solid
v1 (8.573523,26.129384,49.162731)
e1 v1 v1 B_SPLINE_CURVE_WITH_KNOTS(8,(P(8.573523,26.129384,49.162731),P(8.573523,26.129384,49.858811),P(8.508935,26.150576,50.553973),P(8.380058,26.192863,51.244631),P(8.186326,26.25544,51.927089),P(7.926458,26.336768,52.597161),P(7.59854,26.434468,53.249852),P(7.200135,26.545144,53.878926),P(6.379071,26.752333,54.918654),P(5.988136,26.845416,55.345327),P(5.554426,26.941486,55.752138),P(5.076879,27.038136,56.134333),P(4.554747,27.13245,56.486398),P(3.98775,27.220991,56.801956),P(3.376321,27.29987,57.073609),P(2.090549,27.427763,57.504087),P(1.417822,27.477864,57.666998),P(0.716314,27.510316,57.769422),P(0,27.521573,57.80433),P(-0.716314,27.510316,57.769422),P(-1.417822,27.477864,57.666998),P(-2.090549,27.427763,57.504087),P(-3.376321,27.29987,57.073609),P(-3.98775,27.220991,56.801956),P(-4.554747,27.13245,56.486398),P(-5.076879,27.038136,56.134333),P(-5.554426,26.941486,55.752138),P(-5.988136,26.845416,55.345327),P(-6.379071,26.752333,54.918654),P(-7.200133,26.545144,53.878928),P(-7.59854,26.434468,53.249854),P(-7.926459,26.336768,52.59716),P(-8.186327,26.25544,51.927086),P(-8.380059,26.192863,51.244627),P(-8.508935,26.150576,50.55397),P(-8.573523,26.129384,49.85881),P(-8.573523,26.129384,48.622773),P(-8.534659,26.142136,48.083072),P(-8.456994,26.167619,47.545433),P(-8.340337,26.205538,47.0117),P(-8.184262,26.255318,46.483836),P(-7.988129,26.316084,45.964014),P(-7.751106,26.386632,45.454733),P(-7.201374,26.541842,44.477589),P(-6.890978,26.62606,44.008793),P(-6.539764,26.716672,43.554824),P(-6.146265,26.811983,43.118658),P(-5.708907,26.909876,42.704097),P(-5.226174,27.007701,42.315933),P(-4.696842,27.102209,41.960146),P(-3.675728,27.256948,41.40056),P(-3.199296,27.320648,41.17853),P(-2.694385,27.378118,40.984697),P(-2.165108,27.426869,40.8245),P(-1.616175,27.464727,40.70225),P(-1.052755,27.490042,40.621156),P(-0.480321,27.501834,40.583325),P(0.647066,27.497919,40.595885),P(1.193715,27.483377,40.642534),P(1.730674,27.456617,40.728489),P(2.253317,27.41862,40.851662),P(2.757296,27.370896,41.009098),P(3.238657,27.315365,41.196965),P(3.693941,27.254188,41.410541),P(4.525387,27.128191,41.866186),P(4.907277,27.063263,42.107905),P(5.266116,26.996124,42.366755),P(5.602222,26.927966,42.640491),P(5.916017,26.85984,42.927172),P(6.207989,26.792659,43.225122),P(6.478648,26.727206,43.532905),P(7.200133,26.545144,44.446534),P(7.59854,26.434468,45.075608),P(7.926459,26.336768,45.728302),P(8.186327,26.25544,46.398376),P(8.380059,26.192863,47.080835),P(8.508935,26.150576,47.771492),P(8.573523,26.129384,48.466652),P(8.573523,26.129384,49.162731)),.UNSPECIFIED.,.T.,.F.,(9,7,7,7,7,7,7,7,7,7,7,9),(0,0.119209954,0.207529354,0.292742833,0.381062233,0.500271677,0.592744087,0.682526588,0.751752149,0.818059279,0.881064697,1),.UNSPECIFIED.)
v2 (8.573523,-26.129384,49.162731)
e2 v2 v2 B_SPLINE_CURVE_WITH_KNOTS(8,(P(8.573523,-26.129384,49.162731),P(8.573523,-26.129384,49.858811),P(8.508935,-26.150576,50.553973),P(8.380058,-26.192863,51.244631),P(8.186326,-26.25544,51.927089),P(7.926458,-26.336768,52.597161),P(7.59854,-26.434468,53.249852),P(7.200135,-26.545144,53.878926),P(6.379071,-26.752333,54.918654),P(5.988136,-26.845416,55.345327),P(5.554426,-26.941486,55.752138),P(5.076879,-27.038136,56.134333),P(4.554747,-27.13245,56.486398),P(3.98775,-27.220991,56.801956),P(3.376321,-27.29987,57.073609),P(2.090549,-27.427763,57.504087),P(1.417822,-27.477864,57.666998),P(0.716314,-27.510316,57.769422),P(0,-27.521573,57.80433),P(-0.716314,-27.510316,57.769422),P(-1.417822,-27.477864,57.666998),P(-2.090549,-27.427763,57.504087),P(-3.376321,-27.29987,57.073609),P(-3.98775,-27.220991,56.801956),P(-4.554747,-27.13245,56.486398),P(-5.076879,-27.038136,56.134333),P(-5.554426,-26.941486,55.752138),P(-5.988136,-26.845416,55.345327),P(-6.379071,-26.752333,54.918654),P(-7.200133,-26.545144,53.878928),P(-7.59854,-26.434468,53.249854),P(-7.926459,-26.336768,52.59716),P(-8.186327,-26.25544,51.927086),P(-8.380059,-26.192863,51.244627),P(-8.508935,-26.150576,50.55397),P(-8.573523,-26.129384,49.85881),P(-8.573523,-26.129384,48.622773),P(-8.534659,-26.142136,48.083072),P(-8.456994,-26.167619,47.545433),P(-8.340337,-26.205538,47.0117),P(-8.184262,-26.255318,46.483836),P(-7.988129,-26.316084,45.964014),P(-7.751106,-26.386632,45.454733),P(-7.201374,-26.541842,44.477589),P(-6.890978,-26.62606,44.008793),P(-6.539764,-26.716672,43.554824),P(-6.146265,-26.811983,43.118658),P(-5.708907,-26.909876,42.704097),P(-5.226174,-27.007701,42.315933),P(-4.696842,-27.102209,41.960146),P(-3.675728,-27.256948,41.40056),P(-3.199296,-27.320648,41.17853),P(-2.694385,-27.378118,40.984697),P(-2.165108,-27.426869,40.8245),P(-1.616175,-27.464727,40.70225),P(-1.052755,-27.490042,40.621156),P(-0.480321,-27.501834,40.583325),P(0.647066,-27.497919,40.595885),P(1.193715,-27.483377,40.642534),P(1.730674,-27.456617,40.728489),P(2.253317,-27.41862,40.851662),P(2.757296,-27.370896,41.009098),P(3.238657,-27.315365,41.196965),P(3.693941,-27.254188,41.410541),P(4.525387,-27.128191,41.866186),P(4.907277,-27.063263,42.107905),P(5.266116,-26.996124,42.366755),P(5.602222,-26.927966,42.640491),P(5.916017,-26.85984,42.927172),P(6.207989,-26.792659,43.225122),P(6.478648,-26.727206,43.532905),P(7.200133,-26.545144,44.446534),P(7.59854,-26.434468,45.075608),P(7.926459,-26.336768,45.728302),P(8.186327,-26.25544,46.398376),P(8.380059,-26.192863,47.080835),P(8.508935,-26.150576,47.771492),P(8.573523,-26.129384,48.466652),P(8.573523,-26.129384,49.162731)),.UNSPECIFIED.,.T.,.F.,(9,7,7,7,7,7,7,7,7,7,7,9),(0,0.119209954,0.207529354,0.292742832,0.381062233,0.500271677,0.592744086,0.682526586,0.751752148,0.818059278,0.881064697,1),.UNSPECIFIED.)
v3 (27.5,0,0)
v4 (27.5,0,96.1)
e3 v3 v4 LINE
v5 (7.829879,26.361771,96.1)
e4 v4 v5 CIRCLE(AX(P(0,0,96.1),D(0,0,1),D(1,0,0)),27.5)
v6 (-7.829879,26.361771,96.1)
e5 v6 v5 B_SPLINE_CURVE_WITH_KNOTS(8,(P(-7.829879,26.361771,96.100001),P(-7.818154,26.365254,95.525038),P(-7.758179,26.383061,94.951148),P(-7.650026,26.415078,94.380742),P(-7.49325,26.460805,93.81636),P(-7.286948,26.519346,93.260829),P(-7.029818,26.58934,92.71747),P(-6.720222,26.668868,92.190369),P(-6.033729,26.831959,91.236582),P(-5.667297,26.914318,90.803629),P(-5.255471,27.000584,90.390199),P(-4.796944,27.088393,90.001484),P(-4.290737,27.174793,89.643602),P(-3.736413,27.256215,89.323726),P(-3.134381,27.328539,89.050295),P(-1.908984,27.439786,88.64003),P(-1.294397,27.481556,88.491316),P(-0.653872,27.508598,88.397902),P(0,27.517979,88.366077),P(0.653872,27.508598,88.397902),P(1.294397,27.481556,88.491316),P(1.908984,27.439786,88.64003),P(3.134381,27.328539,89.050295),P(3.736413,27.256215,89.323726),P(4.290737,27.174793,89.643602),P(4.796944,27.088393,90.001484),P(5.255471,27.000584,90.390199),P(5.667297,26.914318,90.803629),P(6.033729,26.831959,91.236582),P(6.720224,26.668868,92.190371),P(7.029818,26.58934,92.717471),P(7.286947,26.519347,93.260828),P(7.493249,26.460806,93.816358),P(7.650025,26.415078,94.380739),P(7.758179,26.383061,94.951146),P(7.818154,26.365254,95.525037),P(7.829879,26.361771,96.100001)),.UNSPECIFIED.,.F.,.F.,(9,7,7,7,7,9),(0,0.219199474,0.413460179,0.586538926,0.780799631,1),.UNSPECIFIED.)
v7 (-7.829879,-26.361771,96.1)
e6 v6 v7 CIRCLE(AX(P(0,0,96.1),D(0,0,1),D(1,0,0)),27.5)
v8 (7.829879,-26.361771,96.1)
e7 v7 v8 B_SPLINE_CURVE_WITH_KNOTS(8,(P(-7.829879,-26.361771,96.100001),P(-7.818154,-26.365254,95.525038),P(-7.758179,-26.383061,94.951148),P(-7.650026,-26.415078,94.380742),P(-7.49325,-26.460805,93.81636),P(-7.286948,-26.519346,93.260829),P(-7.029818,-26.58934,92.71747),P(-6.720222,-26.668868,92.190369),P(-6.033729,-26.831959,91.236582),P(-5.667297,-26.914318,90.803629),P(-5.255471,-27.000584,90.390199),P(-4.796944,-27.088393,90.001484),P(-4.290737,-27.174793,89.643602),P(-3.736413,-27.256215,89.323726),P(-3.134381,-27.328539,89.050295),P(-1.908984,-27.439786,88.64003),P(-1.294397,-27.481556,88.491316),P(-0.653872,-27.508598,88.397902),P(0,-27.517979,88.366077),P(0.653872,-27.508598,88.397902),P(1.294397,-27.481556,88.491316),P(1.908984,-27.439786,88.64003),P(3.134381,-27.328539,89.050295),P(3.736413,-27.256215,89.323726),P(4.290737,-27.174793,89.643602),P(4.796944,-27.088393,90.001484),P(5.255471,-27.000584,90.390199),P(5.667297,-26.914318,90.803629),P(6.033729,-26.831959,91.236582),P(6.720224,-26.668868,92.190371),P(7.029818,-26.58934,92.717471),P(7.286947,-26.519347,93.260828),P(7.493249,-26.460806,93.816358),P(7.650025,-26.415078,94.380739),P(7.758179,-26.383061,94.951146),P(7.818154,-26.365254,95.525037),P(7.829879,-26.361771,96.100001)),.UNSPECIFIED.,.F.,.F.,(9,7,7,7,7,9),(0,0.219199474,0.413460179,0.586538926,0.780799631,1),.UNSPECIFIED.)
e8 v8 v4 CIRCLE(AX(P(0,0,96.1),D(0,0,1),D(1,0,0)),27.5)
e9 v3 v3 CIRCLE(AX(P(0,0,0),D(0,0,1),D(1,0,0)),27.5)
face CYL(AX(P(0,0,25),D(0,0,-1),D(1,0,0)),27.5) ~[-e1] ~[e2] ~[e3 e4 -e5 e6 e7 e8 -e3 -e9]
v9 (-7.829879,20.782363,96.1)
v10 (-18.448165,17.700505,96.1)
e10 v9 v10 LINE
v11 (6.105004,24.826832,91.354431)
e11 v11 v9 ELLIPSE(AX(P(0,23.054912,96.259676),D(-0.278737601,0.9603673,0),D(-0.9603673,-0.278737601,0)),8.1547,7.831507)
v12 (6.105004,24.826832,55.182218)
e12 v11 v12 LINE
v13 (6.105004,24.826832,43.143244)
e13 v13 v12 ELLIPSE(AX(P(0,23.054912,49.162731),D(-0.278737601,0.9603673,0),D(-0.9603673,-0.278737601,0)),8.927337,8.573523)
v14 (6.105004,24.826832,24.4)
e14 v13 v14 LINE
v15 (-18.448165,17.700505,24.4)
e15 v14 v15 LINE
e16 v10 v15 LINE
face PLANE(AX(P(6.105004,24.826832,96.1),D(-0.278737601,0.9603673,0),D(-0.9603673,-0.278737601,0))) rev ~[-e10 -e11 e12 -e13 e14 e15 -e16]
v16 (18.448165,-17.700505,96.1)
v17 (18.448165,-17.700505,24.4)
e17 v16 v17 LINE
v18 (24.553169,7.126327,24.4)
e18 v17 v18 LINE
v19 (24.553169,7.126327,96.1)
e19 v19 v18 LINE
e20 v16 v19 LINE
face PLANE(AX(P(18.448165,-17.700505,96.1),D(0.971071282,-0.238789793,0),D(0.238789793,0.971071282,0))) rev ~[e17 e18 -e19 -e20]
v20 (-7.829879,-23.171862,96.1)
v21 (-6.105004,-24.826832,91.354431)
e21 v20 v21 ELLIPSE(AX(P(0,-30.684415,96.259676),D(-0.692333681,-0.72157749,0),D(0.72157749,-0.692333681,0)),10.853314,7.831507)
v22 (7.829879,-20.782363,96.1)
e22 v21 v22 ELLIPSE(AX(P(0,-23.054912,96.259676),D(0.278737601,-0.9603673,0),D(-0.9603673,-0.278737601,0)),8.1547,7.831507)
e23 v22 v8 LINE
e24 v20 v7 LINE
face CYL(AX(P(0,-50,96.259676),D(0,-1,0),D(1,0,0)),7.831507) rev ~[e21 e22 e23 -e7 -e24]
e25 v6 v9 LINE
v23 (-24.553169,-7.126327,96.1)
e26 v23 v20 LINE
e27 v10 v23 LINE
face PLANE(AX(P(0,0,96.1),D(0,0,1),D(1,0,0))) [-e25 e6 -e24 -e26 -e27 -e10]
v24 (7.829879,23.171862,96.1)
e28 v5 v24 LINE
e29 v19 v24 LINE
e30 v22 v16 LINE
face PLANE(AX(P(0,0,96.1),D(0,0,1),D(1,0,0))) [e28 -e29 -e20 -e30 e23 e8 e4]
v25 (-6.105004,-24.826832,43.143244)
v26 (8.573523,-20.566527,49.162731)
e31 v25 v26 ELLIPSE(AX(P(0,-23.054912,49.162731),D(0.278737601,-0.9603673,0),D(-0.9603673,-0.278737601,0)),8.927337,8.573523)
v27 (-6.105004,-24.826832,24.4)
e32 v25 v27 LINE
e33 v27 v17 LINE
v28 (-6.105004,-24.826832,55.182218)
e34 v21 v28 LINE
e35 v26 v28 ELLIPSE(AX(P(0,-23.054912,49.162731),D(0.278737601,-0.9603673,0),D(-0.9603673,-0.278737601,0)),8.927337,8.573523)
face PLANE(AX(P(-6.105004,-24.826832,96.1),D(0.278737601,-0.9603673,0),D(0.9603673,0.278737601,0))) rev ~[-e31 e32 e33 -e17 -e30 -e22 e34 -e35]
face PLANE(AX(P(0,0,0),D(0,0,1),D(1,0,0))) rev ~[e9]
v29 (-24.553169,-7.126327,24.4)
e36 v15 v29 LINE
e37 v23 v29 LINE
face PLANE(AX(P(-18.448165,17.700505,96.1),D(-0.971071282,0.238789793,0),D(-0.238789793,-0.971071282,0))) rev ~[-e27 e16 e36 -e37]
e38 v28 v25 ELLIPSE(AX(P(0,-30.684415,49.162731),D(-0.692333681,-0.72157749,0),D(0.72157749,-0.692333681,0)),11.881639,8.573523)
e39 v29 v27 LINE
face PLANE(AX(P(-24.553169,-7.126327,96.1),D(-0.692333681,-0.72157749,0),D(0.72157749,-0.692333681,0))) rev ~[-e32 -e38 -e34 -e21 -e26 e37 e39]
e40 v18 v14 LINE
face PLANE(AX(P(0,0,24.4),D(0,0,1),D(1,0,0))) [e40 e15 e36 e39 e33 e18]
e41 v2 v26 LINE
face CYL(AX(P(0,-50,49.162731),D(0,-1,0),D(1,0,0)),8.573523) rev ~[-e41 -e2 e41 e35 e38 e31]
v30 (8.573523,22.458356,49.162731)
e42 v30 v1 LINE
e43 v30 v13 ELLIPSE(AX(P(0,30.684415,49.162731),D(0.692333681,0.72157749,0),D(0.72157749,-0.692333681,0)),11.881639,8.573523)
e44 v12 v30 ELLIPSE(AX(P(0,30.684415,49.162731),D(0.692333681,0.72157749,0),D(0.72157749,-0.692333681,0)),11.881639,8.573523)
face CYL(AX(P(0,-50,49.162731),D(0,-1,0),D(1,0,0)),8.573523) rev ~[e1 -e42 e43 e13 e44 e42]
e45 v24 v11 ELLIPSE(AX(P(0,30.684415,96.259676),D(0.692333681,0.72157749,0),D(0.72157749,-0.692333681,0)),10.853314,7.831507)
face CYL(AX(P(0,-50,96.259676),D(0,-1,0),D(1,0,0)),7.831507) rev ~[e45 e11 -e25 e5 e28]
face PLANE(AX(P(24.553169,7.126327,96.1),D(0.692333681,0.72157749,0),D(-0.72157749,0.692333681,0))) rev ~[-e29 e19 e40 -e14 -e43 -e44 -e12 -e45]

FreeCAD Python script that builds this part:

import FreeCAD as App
import Part
import Sketcher
Q = App.Units.Quantity


def add_polygon(sketch, points):
    """Adds a closed chain of lines whose ends are joined by coincident constraints."""
    first, n = sketch.GeometryCount, len(points)
    for a, b in zip(points, points[1:] + points[:1]):
        sketch.addGeometry(Part.LineSegment(App.Vector(*a, 0), App.Vector(*b, 0)), False)
    for i in range(n):
        sketch.addConstraint(Sketcher.Constraint("Coincident", first + i, 2, first + (i + 1) % n, 1))

doc = App.newDocument("Part")
body = doc.addObject("PartDesign::Body", "Body")

sketch1 = doc.addObject("Sketcher::SketchObject", "Sketch")
body.addObject(sketch1)
sketch1.AttachmentSupport = (doc.XY_Plane, [""])
sketch1.MapMode = "FlatFace"
sketch1.addGeometry(Part.Circle(App.Vector(0, 0, 0), App.Vector(0, 0, 1), 27.5), False)
sketch1.addConstraint([
    Sketcher.Constraint("Coincident", 0, 3, -1, 1),
    Sketcher.Constraint("Diameter", 0, Q("55 mm")),
])
pad1 = doc.addObject("PartDesign::Pad", "Pad")
body.addObject(pad1)
pad1.Profile = sketch1
pad1.Length = 25

sketch2 = doc.addObject("Sketcher::SketchObject", "Sketch001")
body.addObject(sketch2)
sketch2.AttachmentSupport = (doc.XY_Plane, [""])
sketch2.MapMode = "FlatFace"
sketch2.AttachmentOffset = App.Placement(App.Vector(0, 0, 25), App.Rotation())
sketch2.addGeometry(Part.Circle(App.Vector(0, 0, 0), App.Vector(0, 0, 1), 27.5), False)
sketch2.addConstraint([
    Sketcher.Constraint("Coincident", 0, 3, -1, 1),
    Sketcher.Constraint("Diameter", 0, Q("55 mm")),
])
pad2 = doc.addObject("PartDesign::Pad", "Pad001")
body.addObject(pad2)
pad2.Profile = sketch2
pad2.Length = 71.1

sketch3 = doc.addObject("Sketcher::SketchObject", "Sketch002")
body.addObject(sketch3)
sketch3.AttachmentSupport = (doc.XY_Plane, [""])
sketch3.MapMode = "FlatFace"
sketch3.AttachmentOffset = App.Placement(App.Vector(0, 0, 96.1), App.Rotation())
add_polygon(sketch3, [(-6.105004, -24.826832), (18.448165, -17.700505), (24.553169, 7.126327), (6.105004, 24.826832), (-18.448165, 17.700505), (-24.553169, -7.126327)])
sketch3.addConstraint([
    Sketcher.Constraint("Symmetric", 0, 2, 3, 2, -1, 1),
    Sketcher.Constraint("Symmetric", 1, 2, 4, 2, -1, 1),
    Sketcher.Constraint("Symmetric", 2, 2, 5, 2, -1, 1),
    Sketcher.Constraint("Equal", 0, 1),
    Sketcher.Constraint("Equal", 1, 2),
    Sketcher.Constraint("DistanceX", -1, 1, 1, 2, Q("24.553169 mm")),
    Sketcher.Constraint("DistanceY", -1, 1, 2, 2, Q("24.826832 mm")),
    Sketcher.Constraint("DistanceY", 0, 2, 1, 2, Q("24.826832 mm")),
    Sketcher.Constraint("DistanceX", 2, 2, 0, 2, Q("12.343161 mm")),
])
pocket1 = doc.addObject("PartDesign::Pocket", "Pocket")
body.addObject(pocket1)
pocket1.Profile = sketch3
pocket1.Length = 71.7

sketch4 = doc.addObject("Sketcher::SketchObject", "Sketch003")
body.addObject(sketch4)
sketch4.AttachmentSupport = (doc.XZ_Plane, [""])
sketch4.MapMode = "FlatFace"
sketch4.AttachmentOffset = App.Placement(App.Vector(0, 0, 50), App.Rotation())
sketch4.addGeometry(Part.Circle(App.Vector(0, 96.259676, 0), App.Vector(0, 0, 1), 7.831507), False)
sketch4.addConstraint([
    Sketcher.Constraint("PointOnObject", 0, 3, -2),
    Sketcher.Constraint("Diameter", 0, Q("15.663014 mm")),
    Sketcher.Constraint("DistanceY", -1, 1, 0, 3, Q("96.259676 mm")),
])
pocket2 = doc.addObject("PartDesign::Pocket", "Pocket001")
body.addObject(pocket2)
pocket2.Profile = sketch4
pocket2.Length = 739.1

sketch5 = doc.addObject("Sketcher::SketchObject", "Sketch004")
body.addObject(sketch5)
sketch5.AttachmentSupport = (doc.XZ_Plane, [""])
sketch5.MapMode = "FlatFace"
sketch5.AttachmentOffset = App.Placement(App.Vector(0, 0, 50), App.Rotation())
sketch5.addGeometry(Part.Circle(App.Vector(0, 49.162731, 0), App.Vector(0, 0, 1), 8.573523), False)
sketch5.addConstraint([
    Sketcher.Constraint("PointOnObject", 0, 3, -2),
    Sketcher.Constraint("Diameter", 0, Q("17.147046 mm")),
    Sketcher.Constraint("DistanceY", -1, 1, 0, 3, Q("49.162731 mm")),
])
pocket3 = doc.addObject("PartDesign::Pocket", "Pocket002")
body.addObject(pocket3)
pocket3.Profile = sketch5
pocket3.Length = 106

doc.recompute()
